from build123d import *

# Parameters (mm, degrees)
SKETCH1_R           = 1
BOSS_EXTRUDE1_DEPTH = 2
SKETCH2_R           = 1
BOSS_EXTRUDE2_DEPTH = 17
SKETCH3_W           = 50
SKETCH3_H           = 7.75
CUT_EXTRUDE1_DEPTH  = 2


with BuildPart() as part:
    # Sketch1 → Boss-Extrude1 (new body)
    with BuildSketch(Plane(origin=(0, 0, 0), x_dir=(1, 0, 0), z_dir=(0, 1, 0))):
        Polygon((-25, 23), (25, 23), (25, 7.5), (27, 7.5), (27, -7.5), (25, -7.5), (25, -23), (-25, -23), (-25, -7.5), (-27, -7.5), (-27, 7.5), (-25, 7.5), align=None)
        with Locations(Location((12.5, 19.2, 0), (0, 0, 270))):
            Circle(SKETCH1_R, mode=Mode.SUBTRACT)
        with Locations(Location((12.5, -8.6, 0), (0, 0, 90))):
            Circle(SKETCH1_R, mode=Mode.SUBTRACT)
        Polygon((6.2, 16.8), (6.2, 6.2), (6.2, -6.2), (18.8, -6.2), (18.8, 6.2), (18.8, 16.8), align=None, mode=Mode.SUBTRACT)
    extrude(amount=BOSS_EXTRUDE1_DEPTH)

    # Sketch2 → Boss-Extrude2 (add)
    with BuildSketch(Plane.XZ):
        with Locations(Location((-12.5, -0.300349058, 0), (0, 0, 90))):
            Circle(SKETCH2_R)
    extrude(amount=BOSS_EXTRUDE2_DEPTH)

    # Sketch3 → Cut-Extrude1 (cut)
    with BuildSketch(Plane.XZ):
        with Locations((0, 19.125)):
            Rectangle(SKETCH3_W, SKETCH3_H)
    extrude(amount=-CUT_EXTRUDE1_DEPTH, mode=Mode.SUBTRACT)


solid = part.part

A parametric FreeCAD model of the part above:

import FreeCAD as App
import Part
import Sketcher

V = App.Vector
Q = App.Units.Quantity

doc = App.newDocument("Part")
body = doc.addObject("PartDesign::Body", "Body")

# Sketch on XZ plane
sketch1 = body.newObject("Sketcher::SketchObject", "Sketch")
sketch1.AttachmentSupport = (doc.getObject("XZ_Plane"), [""])
sketch1.MapMode = "FlatFace"
sketch1.addGeometry(Part.LineSegment(V(25, -23, 0), V(-25, -23, 0)), False)
sketch1.addGeometry(Part.LineSegment(V(-25, -23, 0), V(-25, -7.5, 0)), False)
sketch1.addGeometry(Part.LineSegment(V(-25, -7.5, 0), V(-27, -7.5, 0)), False)
sketch1.addGeometry(Part.LineSegment(V(-27, -7.5, 0), V(-27, 7.5, 0)), False)
sketch1.addGeometry(Part.LineSegment(V(-27, 7.5, 0), V(-25, 7.5, 0)), False)
sketch1.addGeometry(Part.LineSegment(V(-25, 7.5, 0), V(-25, 23, 0)), False)
sketch1.addGeometry(Part.LineSegment(V(-25, 23, 0), V(25, 23, 0)), False)
sketch1.addGeometry(Part.LineSegment(V(25, 23, 0), V(25, 7.5, 0)), False)
sketch1.addGeometry(Part.LineSegment(V(25, 7.5, 0), V(27, 7.5, 0)), False)
sketch1.addGeometry(Part.LineSegment(V(27, 7.5, 0), V(27, -7.5, 0)), False)
sketch1.addGeometry(Part.LineSegment(V(27, -7.5, 0), V(25, -7.5, 0)), False)
sketch1.addGeometry(Part.LineSegment(V(25, -7.5, 0), V(25, -23, 0)), False)
sketch1.addGeometry(Part.Circle(V(12.5, 8.6, 0), V(0, 0, 1), 1), False)
sketch1.addGeometry(Part.LineSegment(V(6.2, -16.8, 0), V(18.8, -16.8, 0)), False)
sketch1.addGeometry(Part.LineSegment(V(18.8, -16.8, 0), V(18.8, 6.2, 0)), False)
sketch1.addGeometry(Part.LineSegment(V(18.8, 6.2, 0), V(6.2, 6.2, 0)), False)
sketch1.addGeometry(Part.LineSegment(V(6.2, 6.2, 0), V(6.2, -16.8, 0)), False)
sketch1.addGeometry(Part.Circle(V(12.5, -19.2, 0), V(0, 0, 1), 1), False)
sketch1.addConstraint(Sketcher.Constraint("Coincident", 0, 2, 1, 1))
sketch1.addConstraint(Sketcher.Constraint("Coincident", 1, 2, 2, 1))
sketch1.addConstraint(Sketcher.Constraint("Coincident", 2, 2, 3, 1))
sketch1.addConstraint(Sketcher.Constraint("Coincident", 3, 2, 4, 1))
sketch1.addConstraint(Sketcher.Constraint("Coincident", 4, 2, 5, 1))
sketch1.addConstraint(Sketcher.Constraint("Coincident", 5, 2, 6, 1))
sketch1.addConstraint(Sketcher.Constraint("Coincident", 6, 2, 7, 1))
sketch1.addConstraint(Sketcher.Constraint("Coincident", 7, 2, 8, 1))
sketch1.addConstraint(Sketcher.Constraint("Coincident", 8, 2, 9, 1))
sketch1.addConstraint(Sketcher.Constraint("Coincident", 9, 2, 10, 1))
sketch1.addConstraint(Sketcher.Constraint("Coincident", 10, 2, 11, 1))
sketch1.addConstraint(Sketcher.Constraint("Coincident", 11, 2, 0, 1))
sketch1.addConstraint(Sketcher.Constraint("Coincident", 13, 2, 14, 1))
sketch1.addConstraint(Sketcher.Constraint("Coincident", 14, 2, 15, 1))
sketch1.addConstraint(Sketcher.Constraint("Coincident", 15, 2, 16, 1))
sketch1.addConstraint(Sketcher.Constraint("Coincident", 16, 2, 13, 1))
sketch1.addConstraint(Sketcher.Constraint("Horizontal", 0))
sketch1.addConstraint(Sketcher.Constraint("Vertical", 1))
sketch1.addConstraint(Sketcher.Constraint("Horizontal", 2))
sketch1.addConstraint(Sketcher.Constraint("Vertical", 3))
sketch1.addConstraint(Sketcher.Constraint("Horizontal", 4))
sketch1.addConstraint(Sketcher.Constraint("Vertical", 5))
sketch1.addConstraint(Sketcher.Constraint("Horizontal", 6))
sketch1.addConstraint(Sketcher.Constraint("Vertical", 7))
sketch1.addConstraint(Sketcher.Constraint("Horizontal", 8))
sketch1.addConstraint(Sketcher.Constraint("Vertical", 9))
sketch1.addConstraint(Sketcher.Constraint("Horizontal", 10))
sketch1.addConstraint(Sketcher.Constraint("Vertical", 11))
sketch1.addConstraint(Sketcher.Constraint("Horizontal", 13))
sketch1.addConstraint(Sketcher.Constraint("Vertical", 14))
sketch1.addConstraint(Sketcher.Constraint("Horizontal", 15))
sketch1.addConstraint(Sketcher.Constraint("Vertical", 16))
sketch1.addConstraint(Sketcher.Constraint("Equal", 12, 17))
sketch1.addConstraint(Sketcher.Constraint("Symmetric", 0, 2, 6, 2, -1, 1))
sketch1.addConstraint(Sketcher.Constraint("Symmetric", 2, 2, 8, 2, -1, 1))
sketch1.addConstraint(Sketcher.Constraint("Symmetric", 4, 2, 10, 2, -1, 1))
sketch1.addConstraint(Sketcher.Constraint("Symmetric", 4, 2, 7, 2, -2))
sketch1.addConstraint(Sketcher.Constraint("Vertical", 12, 3, 17, 3))
sketch1.addConstraint(Sketcher.Constraint("Diameter", 12, Q("2 mm")))
sketch1.addConstraint(Sketcher.Constraint("DistanceX", 0, 2, 0, 1, Q("50 mm")))
sketch1.addConstraint(Sketcher.Constraint("DistanceX", 2, 2, 2, 1, Q("2 mm")))
sketch1.addConstraint(Sketcher.Constraint("DistanceY", 3, 1, 3, 2, Q("15 mm")))
sketch1.addConstraint(Sketcher.Constraint("DistanceY", 14, 1, 14, 2, Q("23 mm")))
sketch1.addConstraint(Sketcher.Constraint("DistanceX", 13, 1, 13, 2, Q("12.6 mm")))
sketch1.addConstraint(Sketcher.Constraint("DistanceY", 1, 1, 1, 2, Q("15.5 mm")))
sketch1.addConstraint(Sketcher.Constraint("DistanceX", -1, 1, 12, 3, Q("12.5 mm")))
sketch1.addConstraint(Sketcher.Constraint("DistanceY", -1, 1, 12, 3, Q("8.6 mm")))
sketch1.addConstraint(Sketcher.Constraint("DistanceY", 17, 3, -1, 1, Q("19.2 mm")))
sketch1.addConstraint(Sketcher.Constraint("DistanceX", -1, 1, 13, 2, Q("18.8 mm")))
sketch1.addConstraint(Sketcher.Constraint("DistanceY", 13, 2, -1, 1, Q("16.8 mm")))
pad1 = body.newObject("PartDesign::Pad", "Pad")
pad1.Profile = sketch1
pad1.Length = 2
pad1.Reversed = True

# Sketch on XZ plane
sketch2 = body.newObject("Sketcher::SketchObject", "Sketch001")
sketch2.AttachmentSupport = (doc.getObject("XZ_Plane"), [""])
sketch2.MapMode = "FlatFace"
sketch2.addGeometry(Part.Circle(V(-12.5, -0.300349, 0), V(0, 0, 1), 1), False)
sketch2.addConstraint(Sketcher.Constraint("Diameter", 0, Q("2 mm")))
sketch2.addConstraint(Sketcher.Constraint("DistanceX", 0, 3, -1, 1, Q("12.5 mm")))
sketch2.addConstraint(Sketcher.Constraint("DistanceY", 0, 3, -1, 1, Q("0.300349 mm")))
pad2 = body.newObject("PartDesign::Pad", "Pad001")
pad2.Profile = sketch2
pad2.Length = 17

# Sketch on XZ plane
sketch3 = body.newObject("Sketcher::SketchObject", "Sketch002")
sketch3.AttachmentSupport = (doc.getObject("XZ_Plane"), [""])
sketch3.MapMode = "FlatFace"
sketch3.addGeometry(Part.LineSegment(V(-25, 23, 0), V(-25, 15.25, 0)), False)
sketch3.addGeometry(Part.LineSegment(V(-25, 15.25, 0), V(25, 15.25, 0)), False)
sketch3.addGeometry(Part.LineSegment(V(25, 15.25, 0), V(25, 23, 0)), False)
sketch3.addGeometry(Part.LineSegment(V(25, 23, 0), V(-25, 23, 0)), False)
sketch3.addConstraint(Sketcher.Constraint("Coincident", 0, 2, 1, 1))
sketch3.addConstraint(Sketcher.Constraint("Coincident", 1, 2, 2, 1))
sketch3.addConstraint(Sketcher.Constraint("Coincident", 2, 2, 3, 1))
sketch3.addConstraint(Sketcher.Constraint("Coincident", 3, 2, 0, 1))
sketch3.addConstraint(Sketcher.Constraint("Vertical", 0))
sketch3.addConstraint(Sketcher.Constraint("Horizontal", 1))
sketch3.addConstraint(Sketcher.Constraint("Vertical", 2))
sketch3.addConstraint(Sketcher.Constraint("Horizontal", 3))
sketch3.addConstraint(Sketcher.Constraint("DistanceX", 1, 1, 1, 2, Q("50 mm")))
sketch3.addConstraint(Sketcher.Constraint("DistanceX", 0, 2, -1, 1, Q("25 mm")))
sketch3.addConstraint(Sketcher.Constraint("DistanceY", -1, 1, 2, 2, Q("23 mm")))
sketch3.addConstraint(Sketcher.Constraint("DistanceY", 0, 2, 0, 1, Q("7.75 mm")))
pocket1 = body.newObject("PartDesign::Pocket", "Pocket")
pocket1.Profile = sketch3
pocket1.Length = 2

doc.recompute()
